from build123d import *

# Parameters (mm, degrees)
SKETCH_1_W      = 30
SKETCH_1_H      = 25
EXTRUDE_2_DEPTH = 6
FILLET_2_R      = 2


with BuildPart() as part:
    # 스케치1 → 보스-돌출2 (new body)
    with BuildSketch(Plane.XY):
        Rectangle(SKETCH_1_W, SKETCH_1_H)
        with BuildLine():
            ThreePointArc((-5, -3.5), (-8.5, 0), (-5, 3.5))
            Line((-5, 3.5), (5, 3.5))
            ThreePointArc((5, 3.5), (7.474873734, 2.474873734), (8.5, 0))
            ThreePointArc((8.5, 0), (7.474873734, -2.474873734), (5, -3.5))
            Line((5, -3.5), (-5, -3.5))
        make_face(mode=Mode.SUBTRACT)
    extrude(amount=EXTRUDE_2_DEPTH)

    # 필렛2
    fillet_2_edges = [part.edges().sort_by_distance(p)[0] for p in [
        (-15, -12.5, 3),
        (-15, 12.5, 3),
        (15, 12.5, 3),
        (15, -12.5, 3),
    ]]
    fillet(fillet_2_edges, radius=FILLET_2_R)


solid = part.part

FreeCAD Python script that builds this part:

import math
import FreeCAD as App
import Part
import Sketcher

V = App.Vector


def edges_at(feature, points):
    """Names of the edges that pass closest to the given points."""
    edges = feature.Shape.Edges
    near = lambda p: min(range(len(edges)), key=lambda i: edges[i].distToShape(Part.Vertex(*p))[0])
    return sorted({f"Edge{near(p) + 1}" for p in points})

doc = App.newDocument("Part")
body = doc.addObject("PartDesign::Body", "Body")

# Sketch on XY plane
sketch1 = body.newObject("Sketcher::SketchObject", "Sketch")
sketch1.AttachmentSupport = (doc.getObject("XY_Plane"), [""])
sketch1.MapMode = "FlatFace"
sketch1.addGeometry(Part.LineSegment(V(-15, 12.5, 0), V(-15, -12.5, 0)), False)
sketch1.addGeometry(Part.LineSegment(V(-15, -12.5, 0), V(15, -12.5, 0)), False)
sketch1.addGeometry(Part.LineSegment(V(15, -12.5, 0), V(15, 12.5, 0)), False)
sketch1.addGeometry(Part.LineSegment(V(15, 12.5, 0), V(-15, 12.5, 0)), False)
sketch1.addGeometry(Part.LineSegment(V(5, -3.5, 0), V(-5, -3.5, 0)), False)
sketch1.addGeometry(Part.ArcOfCircle(Part.Circle(V(-5, 0, 0), V(0, 0, 1), 3.5), math.radians(90), math.radians(270)), False)
sketch1.addGeometry(Part.LineSegment(V(-5, 3.5, 0), V(5, 3.5, 0)), False)
sketch1.addGeometry(Part.ArcOfCircle(Part.Circle(V(5, 0, 0), V(0, 0, 1), 3.5), math.radians(0), math.radians(90)), False)
sketch1.addGeometry(Part.ArcOfCircle(Part.Circle(V(5, 0, 0), V(0, 0, 1), 3.5), math.radians(-90), math.radians(0)), False)
sketch1.addConstraint(Sketcher.Constraint("Coincident", 0, 2, 1, 1))
sketch1.addConstraint(Sketcher.Constraint("Coincident", 1, 2, 2, 1))
sketch1.addConstraint(Sketcher.Constraint("Coincident", 2, 2, 3, 1))
sketch1.addConstraint(Sketcher.Constraint("Coincident", 3, 2, 0, 1))
sketch1.addConstraint(Sketcher.Constraint("Tangent", 4, 2, 5, 2))
sketch1.addConstraint(Sketcher.Constraint("Tangent", 5, 1, 6, 1))
sketch1.addConstraint(Sketcher.Constraint("Tangent", 6, 2, 7, 2))
sketch1.addConstraint(Sketcher.Constraint("Tangent", 7, 1, 8, 2))
sketch1.addConstraint(Sketcher.Constraint("Tangent", 8, 1, 4, 1))
sketch1.addConstraint(Sketcher.Constraint("Vertical", 0))
sketch1.addConstraint(Sketcher.Constraint("Horizontal", 1))
sketch1.addConstraint(Sketcher.Constraint("Vertical", 2))
sketch1.addConstraint(Sketcher.Constraint("Horizontal", 3))
sketch1.addConstraint(Sketcher.Constraint("Horizontal", 4))
sketch1.addConstraint(Sketcher.Constraint("Horizontal", 6))
sketch1.addConstraint(Sketcher.Constraint("Equal", 5, 7))
sketch1.addConstraint(Sketcher.Constraint("Symmetric", 5, 3, 7, 3, -1, 1))
sketch1.addConstraint(Sketcher.Constraint("Symmetric", 0, 2, 2, 2, -1, 1))
sketch1.addConstraint(Sketcher.Constraint("PointOnObject", 7, 1, -1))
sketch1.addConstraint(Sketcher.Constraint("Radius", 5, 3.5))
sketch1.addConstraint(Sketcher.Constraint("DistanceX", 1, 1, 1, 2, 30.0))
sketch1.addConstraint(Sketcher.Constraint("DistanceX", 4, 2, 4, 1, 10.0))
sketch1.addConstraint(Sketcher.Constraint("DistanceY", 0, 2, 0, 1, 25.0))
pad1 = body.newObject("PartDesign::Pad", "Pad")
pad1.Profile = sketch1
pad1.Length = 6
doc.recompute()

fillet = body.newObject("PartDesign::Fillet", "Fillet")
fillet.Base = (pad1, edges_at(pad1, [
    (-15, -12.5, 3),
    (-15, 12.5, 3),
    (15, 12.5, 3),
    (15, -12.5, 3),
]))
fillet.Radius = 2

doc.recompute()
